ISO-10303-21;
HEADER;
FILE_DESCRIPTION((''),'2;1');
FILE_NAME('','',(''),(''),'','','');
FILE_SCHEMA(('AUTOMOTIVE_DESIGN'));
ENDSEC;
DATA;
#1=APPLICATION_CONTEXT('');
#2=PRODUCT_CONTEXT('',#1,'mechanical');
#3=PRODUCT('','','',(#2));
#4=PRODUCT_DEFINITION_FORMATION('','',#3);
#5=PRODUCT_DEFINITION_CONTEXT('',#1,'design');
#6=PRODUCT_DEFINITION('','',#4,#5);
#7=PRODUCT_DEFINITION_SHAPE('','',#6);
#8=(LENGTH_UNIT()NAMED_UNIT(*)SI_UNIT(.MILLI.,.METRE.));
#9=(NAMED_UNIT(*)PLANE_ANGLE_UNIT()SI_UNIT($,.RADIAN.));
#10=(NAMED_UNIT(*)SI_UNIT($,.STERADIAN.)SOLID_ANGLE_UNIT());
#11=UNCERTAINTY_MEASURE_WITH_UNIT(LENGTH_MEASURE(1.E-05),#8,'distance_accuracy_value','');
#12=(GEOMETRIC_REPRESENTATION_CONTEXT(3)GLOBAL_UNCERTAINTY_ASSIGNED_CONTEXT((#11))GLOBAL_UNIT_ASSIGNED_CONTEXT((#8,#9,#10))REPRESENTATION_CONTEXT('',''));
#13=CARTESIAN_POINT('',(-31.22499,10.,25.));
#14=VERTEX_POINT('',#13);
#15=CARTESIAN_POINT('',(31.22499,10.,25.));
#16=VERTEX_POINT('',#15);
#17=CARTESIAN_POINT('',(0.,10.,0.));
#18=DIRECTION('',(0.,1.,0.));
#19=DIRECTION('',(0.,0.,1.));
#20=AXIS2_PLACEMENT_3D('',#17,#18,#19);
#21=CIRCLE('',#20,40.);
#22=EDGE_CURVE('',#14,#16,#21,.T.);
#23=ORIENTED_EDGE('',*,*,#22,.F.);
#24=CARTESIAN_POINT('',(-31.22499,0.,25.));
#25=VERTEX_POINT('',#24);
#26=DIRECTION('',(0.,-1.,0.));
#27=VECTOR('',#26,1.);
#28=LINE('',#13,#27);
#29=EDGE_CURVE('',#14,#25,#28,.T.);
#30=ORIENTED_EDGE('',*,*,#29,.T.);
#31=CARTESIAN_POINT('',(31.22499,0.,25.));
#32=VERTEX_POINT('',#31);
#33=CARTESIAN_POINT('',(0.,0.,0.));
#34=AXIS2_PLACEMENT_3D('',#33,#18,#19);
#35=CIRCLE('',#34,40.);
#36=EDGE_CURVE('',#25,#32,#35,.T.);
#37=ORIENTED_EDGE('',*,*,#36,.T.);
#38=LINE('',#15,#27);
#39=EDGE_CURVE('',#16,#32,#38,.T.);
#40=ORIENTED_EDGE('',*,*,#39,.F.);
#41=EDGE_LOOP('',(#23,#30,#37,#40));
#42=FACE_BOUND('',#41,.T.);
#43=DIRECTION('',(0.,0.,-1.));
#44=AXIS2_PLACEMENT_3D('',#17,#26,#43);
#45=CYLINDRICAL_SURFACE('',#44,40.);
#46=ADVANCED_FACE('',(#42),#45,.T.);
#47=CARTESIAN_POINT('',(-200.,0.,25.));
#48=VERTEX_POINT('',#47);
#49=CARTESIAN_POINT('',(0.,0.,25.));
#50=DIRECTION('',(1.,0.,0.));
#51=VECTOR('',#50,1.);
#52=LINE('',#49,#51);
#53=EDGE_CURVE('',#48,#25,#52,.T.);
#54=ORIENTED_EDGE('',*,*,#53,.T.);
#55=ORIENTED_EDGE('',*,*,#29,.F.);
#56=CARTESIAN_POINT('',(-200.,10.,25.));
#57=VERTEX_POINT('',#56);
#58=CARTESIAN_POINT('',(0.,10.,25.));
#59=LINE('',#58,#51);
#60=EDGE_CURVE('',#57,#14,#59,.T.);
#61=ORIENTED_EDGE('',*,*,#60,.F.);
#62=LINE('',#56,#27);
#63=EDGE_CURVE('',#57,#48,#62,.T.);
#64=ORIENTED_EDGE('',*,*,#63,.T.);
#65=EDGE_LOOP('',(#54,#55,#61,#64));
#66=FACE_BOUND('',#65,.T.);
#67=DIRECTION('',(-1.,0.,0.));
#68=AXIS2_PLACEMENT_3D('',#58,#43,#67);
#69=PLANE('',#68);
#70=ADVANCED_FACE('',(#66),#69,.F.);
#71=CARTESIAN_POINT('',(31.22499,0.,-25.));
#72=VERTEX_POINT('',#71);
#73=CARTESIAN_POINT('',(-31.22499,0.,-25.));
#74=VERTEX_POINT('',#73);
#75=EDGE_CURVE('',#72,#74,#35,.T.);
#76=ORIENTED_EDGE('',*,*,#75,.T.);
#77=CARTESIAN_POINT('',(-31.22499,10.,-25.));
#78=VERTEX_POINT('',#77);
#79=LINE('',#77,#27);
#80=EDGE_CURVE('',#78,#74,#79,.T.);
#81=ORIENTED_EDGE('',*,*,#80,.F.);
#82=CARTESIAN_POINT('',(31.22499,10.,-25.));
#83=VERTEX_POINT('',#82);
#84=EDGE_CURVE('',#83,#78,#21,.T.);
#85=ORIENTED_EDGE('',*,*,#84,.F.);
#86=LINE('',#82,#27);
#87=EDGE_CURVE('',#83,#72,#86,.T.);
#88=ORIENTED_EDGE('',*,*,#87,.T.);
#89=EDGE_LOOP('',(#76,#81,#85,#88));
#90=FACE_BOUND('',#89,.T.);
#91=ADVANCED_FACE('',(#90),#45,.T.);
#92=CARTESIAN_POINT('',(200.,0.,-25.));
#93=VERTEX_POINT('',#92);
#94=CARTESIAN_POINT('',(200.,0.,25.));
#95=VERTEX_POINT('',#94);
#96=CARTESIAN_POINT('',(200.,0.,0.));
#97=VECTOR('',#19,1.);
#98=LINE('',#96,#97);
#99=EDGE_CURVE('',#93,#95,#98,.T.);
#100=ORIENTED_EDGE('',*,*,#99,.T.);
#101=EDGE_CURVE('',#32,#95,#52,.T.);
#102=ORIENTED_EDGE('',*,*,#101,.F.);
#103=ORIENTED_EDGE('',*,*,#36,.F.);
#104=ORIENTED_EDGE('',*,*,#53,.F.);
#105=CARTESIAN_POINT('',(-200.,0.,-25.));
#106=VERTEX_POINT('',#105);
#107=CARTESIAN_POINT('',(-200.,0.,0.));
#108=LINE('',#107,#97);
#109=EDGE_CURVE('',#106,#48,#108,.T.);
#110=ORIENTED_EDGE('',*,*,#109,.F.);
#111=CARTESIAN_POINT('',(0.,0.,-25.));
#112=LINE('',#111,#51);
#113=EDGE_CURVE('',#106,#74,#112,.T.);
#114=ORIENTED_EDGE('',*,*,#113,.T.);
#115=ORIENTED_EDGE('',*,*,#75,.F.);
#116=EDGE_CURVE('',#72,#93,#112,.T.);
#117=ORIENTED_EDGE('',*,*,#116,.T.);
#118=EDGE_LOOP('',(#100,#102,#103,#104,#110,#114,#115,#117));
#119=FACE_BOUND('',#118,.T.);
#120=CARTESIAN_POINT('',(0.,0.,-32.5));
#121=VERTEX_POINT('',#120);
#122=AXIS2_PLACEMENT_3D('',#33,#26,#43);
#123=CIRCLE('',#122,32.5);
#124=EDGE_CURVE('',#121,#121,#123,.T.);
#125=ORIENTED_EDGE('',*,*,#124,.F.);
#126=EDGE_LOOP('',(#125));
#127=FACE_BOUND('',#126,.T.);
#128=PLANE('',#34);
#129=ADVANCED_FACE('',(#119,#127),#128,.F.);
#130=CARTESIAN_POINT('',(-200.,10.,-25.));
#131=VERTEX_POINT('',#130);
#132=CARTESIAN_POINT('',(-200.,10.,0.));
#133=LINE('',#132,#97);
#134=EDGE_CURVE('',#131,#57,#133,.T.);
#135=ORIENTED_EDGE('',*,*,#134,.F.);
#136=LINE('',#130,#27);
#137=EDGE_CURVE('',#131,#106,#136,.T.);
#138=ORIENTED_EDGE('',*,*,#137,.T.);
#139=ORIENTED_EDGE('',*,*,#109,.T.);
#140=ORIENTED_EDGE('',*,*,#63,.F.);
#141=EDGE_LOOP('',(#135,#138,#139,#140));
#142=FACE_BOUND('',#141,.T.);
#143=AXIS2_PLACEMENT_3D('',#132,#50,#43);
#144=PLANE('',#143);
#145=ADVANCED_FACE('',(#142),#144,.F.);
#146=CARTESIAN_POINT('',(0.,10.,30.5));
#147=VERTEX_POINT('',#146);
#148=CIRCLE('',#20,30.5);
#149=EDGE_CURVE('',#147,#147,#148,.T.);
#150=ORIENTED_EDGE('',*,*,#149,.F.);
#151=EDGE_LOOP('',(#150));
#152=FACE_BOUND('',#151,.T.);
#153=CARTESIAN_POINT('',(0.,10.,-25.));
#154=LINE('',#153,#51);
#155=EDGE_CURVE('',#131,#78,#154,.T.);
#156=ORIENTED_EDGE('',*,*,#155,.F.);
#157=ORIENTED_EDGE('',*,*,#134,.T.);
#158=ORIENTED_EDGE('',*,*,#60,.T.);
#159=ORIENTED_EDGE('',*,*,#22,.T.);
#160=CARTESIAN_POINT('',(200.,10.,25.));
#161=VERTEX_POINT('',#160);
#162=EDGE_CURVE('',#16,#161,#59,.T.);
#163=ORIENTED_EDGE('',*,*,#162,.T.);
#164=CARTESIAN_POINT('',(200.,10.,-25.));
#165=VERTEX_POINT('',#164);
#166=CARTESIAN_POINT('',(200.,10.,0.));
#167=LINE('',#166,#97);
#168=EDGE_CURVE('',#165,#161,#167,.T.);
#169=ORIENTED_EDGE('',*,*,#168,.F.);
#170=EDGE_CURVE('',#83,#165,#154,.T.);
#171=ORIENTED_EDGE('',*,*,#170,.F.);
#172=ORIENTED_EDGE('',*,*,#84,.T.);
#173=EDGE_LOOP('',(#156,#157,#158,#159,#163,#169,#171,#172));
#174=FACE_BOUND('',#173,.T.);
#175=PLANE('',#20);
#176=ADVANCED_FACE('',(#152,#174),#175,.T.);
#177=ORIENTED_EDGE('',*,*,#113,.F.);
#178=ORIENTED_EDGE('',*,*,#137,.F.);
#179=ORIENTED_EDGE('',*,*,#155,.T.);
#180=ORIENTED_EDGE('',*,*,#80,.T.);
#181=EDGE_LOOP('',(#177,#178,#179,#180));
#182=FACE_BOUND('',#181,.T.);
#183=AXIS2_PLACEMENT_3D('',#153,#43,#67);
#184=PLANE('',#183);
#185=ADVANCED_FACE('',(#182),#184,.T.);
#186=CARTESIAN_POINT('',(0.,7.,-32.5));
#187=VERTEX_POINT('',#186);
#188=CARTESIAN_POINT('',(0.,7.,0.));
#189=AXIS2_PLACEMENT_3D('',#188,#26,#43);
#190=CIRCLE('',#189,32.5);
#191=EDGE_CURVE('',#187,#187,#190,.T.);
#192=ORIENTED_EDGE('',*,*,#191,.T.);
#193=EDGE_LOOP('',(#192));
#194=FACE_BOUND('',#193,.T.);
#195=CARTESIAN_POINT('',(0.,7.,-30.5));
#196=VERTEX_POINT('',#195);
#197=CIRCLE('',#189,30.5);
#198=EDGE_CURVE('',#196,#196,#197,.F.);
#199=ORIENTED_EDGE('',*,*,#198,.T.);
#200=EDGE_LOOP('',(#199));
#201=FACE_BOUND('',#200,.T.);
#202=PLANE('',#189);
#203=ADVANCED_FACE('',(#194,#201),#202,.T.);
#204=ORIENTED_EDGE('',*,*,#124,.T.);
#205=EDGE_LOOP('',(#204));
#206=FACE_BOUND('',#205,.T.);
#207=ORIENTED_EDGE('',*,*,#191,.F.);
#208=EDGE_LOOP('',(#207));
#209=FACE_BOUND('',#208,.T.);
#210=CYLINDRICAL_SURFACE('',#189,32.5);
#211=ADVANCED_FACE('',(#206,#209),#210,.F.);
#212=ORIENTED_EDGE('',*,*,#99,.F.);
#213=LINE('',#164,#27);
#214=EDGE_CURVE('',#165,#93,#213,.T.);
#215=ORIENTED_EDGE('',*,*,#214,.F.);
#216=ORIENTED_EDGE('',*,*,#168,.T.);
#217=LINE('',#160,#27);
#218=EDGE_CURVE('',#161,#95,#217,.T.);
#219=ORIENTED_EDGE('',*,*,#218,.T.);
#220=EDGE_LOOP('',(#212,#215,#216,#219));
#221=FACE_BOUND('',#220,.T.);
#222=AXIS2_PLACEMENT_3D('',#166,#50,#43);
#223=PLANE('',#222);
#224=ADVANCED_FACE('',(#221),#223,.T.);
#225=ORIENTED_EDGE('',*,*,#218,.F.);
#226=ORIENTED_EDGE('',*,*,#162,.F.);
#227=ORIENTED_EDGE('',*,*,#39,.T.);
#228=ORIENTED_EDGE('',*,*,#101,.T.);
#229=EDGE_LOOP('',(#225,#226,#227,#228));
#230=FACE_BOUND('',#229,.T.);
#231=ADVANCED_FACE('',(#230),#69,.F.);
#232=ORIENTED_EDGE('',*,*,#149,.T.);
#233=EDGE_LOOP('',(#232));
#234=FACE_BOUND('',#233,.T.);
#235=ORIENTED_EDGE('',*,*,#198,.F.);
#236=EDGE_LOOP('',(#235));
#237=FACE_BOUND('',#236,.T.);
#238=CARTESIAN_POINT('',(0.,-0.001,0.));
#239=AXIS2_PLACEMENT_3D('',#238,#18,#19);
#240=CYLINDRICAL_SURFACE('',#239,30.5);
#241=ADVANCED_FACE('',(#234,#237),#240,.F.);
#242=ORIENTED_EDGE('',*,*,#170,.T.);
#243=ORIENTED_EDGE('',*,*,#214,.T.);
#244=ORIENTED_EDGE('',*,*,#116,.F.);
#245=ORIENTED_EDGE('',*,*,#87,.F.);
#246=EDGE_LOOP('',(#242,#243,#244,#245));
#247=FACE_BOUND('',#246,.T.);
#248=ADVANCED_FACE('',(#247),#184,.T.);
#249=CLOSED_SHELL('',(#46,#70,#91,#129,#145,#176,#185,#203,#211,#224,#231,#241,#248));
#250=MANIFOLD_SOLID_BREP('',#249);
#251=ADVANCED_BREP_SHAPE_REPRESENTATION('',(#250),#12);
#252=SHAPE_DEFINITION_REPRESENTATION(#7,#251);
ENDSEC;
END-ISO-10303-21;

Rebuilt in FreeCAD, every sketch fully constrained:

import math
import FreeCAD as App
import Part
import Sketcher

V = App.Vector

doc = App.newDocument("Part")
body = doc.addObject("PartDesign::Body", "Body")

# Sketch on XZ plane
sketch1 = body.newObject("Sketcher::SketchObject", "Sketch")
sketch1.AttachmentSupport = (doc.getObject("XZ_Plane"), [""])
sketch1.MapMode = "FlatFace"
sketch1.addGeometry(Part.ArcOfCircle(Part.Circle(V(0, 0, 0), V(0, 0, 1), 40), math.radians(-141), math.radians(-39)), False)
sketch1.addGeometry(Part.LineSegment(V(-31, -25, 0), V(-200, -25, 0)), False)
sketch1.addGeometry(Part.LineSegment(V(-200, -25, 0), V(-200, 25, 0)), False)
sketch1.addGeometry(Part.LineSegment(V(-200, 25, 0), V(-31, 25, 0)), False)
sketch1.addGeometry(Part.ArcOfCircle(Part.Circle(V(0, 0, 0), V(0, 0, 1), 40), math.radians(39), math.radians(141)), False)
sketch1.addGeometry(Part.LineSegment(V(31, 25, 0), V(200, 25, 0)), False)
sketch1.addGeometry(Part.LineSegment(V(200, 25, 0), V(200, -25, 0)), False)
sketch1.addGeometry(Part.LineSegment(V(200, -25, 0), V(31, -25, 0)), False)
sketch1.addConstraint(Sketcher.Constraint("Coincident", 0, 1, 1, 1))
sketch1.addConstraint(Sketcher.Constraint("Coincident", 1, 2, 2, 1))
sketch1.addConstraint(Sketcher.Constraint("Coincident", 2, 2, 3, 1))
sketch1.addConstraint(Sketcher.Constraint("Coincident", 3, 2, 4, 2))
sketch1.addConstraint(Sketcher.Constraint("Coincident", 4, 1, 5, 1))
sketch1.addConstraint(Sketcher.Constraint("Coincident", 5, 2, 6, 1))
sketch1.addConstraint(Sketcher.Constraint("Coincident", 6, 2, 7, 1))
sketch1.addConstraint(Sketcher.Constraint("Coincident", 7, 2, 0, 2))
sketch1.addConstraint(Sketcher.Constraint("Horizontal", 1))
sketch1.addConstraint(Sketcher.Constraint("Vertical", 2))
sketch1.addConstraint(Sketcher.Constraint("Horizontal", 3))
sketch1.addConstraint(Sketcher.Constraint("Horizontal", 5))
sketch1.addConstraint(Sketcher.Constraint("Vertical", 6))
sketch1.addConstraint(Sketcher.Constraint("Horizontal", 7))
sketch1.addConstraint(Sketcher.Constraint("Coincident", 0, 3, -1, 1))
sketch1.addConstraint(Sketcher.Constraint("Coincident", 4, 3, -1, 1))
sketch1.addConstraint(Sketcher.Constraint("Equal", 0, 4))
sketch1.addConstraint(Sketcher.Constraint("Symmetric", 1, 2, 5, 2, -1, 1))
sketch1.addConstraint(Sketcher.Constraint("Horizontal", 3, 2, 4, 1))
sketch1.addConstraint(Sketcher.Constraint("Horizontal", 1, 2, 6, 2))
sketch1.addConstraint(Sketcher.Constraint("Radius", 0, 40.0))
sketch1.addConstraint(Sketcher.Constraint("DistanceY", 2, 1, 2, 2, 50.0))
sketch1.addConstraint(Sketcher.Constraint("DistanceX", 1, 2, -1, 1, 200.0))
pad1 = body.newObject("PartDesign::Pad", "Pad")
pad1.Profile = sketch1
pad1.Length = 10
pad1.Reversed = True

# Sketch on XZ plane
sketch2 = body.newObject("Sketcher::SketchObject", "Sketch001")
sketch2.AttachmentSupport = (doc.getObject("XZ_Plane"), [""])
sketch2.MapMode = "FlatFace"
sketch2.AttachmentOffset = App.Placement(V(0, 0, -10), App.Rotation())
sketch2.addGeometry(Part.Circle(V(0, 0, 0), V(0, 0, 1), 30), False)
sketch2.addConstraint(Sketcher.Constraint("Coincident", 0, 3, -1, 1))
sketch2.addConstraint(Sketcher.Constraint("Diameter", 0, 61.0))
pocket1 = body.newObject("PartDesign::Pocket", "Pocket")
pocket1.Profile = sketch2
pocket1.Type = "UpToFirst"
pocket1.Reversed = True

# Sketch on XZ plane
sketch3 = body.newObject("Sketcher::SketchObject", "Sketch002")
sketch3.AttachmentSupport = (doc.getObject("XZ_Plane"), [""])
sketch3.MapMode = "FlatFace"
sketch3.addGeometry(Part.Circle(V(0, 0, 0), V(0, 0, 1), 32), False)
sketch3.addConstraint(Sketcher.Constraint("Coincident", 0, 3, -1, 1))
sketch3.addConstraint(Sketcher.Constraint("Diameter", 0, 65.0))
pocket2 = body.newObject("PartDesign::Pocket", "Pocket001")
pocket2.Profile = sketch3
pocket2.Length = 7

doc.recompute()
